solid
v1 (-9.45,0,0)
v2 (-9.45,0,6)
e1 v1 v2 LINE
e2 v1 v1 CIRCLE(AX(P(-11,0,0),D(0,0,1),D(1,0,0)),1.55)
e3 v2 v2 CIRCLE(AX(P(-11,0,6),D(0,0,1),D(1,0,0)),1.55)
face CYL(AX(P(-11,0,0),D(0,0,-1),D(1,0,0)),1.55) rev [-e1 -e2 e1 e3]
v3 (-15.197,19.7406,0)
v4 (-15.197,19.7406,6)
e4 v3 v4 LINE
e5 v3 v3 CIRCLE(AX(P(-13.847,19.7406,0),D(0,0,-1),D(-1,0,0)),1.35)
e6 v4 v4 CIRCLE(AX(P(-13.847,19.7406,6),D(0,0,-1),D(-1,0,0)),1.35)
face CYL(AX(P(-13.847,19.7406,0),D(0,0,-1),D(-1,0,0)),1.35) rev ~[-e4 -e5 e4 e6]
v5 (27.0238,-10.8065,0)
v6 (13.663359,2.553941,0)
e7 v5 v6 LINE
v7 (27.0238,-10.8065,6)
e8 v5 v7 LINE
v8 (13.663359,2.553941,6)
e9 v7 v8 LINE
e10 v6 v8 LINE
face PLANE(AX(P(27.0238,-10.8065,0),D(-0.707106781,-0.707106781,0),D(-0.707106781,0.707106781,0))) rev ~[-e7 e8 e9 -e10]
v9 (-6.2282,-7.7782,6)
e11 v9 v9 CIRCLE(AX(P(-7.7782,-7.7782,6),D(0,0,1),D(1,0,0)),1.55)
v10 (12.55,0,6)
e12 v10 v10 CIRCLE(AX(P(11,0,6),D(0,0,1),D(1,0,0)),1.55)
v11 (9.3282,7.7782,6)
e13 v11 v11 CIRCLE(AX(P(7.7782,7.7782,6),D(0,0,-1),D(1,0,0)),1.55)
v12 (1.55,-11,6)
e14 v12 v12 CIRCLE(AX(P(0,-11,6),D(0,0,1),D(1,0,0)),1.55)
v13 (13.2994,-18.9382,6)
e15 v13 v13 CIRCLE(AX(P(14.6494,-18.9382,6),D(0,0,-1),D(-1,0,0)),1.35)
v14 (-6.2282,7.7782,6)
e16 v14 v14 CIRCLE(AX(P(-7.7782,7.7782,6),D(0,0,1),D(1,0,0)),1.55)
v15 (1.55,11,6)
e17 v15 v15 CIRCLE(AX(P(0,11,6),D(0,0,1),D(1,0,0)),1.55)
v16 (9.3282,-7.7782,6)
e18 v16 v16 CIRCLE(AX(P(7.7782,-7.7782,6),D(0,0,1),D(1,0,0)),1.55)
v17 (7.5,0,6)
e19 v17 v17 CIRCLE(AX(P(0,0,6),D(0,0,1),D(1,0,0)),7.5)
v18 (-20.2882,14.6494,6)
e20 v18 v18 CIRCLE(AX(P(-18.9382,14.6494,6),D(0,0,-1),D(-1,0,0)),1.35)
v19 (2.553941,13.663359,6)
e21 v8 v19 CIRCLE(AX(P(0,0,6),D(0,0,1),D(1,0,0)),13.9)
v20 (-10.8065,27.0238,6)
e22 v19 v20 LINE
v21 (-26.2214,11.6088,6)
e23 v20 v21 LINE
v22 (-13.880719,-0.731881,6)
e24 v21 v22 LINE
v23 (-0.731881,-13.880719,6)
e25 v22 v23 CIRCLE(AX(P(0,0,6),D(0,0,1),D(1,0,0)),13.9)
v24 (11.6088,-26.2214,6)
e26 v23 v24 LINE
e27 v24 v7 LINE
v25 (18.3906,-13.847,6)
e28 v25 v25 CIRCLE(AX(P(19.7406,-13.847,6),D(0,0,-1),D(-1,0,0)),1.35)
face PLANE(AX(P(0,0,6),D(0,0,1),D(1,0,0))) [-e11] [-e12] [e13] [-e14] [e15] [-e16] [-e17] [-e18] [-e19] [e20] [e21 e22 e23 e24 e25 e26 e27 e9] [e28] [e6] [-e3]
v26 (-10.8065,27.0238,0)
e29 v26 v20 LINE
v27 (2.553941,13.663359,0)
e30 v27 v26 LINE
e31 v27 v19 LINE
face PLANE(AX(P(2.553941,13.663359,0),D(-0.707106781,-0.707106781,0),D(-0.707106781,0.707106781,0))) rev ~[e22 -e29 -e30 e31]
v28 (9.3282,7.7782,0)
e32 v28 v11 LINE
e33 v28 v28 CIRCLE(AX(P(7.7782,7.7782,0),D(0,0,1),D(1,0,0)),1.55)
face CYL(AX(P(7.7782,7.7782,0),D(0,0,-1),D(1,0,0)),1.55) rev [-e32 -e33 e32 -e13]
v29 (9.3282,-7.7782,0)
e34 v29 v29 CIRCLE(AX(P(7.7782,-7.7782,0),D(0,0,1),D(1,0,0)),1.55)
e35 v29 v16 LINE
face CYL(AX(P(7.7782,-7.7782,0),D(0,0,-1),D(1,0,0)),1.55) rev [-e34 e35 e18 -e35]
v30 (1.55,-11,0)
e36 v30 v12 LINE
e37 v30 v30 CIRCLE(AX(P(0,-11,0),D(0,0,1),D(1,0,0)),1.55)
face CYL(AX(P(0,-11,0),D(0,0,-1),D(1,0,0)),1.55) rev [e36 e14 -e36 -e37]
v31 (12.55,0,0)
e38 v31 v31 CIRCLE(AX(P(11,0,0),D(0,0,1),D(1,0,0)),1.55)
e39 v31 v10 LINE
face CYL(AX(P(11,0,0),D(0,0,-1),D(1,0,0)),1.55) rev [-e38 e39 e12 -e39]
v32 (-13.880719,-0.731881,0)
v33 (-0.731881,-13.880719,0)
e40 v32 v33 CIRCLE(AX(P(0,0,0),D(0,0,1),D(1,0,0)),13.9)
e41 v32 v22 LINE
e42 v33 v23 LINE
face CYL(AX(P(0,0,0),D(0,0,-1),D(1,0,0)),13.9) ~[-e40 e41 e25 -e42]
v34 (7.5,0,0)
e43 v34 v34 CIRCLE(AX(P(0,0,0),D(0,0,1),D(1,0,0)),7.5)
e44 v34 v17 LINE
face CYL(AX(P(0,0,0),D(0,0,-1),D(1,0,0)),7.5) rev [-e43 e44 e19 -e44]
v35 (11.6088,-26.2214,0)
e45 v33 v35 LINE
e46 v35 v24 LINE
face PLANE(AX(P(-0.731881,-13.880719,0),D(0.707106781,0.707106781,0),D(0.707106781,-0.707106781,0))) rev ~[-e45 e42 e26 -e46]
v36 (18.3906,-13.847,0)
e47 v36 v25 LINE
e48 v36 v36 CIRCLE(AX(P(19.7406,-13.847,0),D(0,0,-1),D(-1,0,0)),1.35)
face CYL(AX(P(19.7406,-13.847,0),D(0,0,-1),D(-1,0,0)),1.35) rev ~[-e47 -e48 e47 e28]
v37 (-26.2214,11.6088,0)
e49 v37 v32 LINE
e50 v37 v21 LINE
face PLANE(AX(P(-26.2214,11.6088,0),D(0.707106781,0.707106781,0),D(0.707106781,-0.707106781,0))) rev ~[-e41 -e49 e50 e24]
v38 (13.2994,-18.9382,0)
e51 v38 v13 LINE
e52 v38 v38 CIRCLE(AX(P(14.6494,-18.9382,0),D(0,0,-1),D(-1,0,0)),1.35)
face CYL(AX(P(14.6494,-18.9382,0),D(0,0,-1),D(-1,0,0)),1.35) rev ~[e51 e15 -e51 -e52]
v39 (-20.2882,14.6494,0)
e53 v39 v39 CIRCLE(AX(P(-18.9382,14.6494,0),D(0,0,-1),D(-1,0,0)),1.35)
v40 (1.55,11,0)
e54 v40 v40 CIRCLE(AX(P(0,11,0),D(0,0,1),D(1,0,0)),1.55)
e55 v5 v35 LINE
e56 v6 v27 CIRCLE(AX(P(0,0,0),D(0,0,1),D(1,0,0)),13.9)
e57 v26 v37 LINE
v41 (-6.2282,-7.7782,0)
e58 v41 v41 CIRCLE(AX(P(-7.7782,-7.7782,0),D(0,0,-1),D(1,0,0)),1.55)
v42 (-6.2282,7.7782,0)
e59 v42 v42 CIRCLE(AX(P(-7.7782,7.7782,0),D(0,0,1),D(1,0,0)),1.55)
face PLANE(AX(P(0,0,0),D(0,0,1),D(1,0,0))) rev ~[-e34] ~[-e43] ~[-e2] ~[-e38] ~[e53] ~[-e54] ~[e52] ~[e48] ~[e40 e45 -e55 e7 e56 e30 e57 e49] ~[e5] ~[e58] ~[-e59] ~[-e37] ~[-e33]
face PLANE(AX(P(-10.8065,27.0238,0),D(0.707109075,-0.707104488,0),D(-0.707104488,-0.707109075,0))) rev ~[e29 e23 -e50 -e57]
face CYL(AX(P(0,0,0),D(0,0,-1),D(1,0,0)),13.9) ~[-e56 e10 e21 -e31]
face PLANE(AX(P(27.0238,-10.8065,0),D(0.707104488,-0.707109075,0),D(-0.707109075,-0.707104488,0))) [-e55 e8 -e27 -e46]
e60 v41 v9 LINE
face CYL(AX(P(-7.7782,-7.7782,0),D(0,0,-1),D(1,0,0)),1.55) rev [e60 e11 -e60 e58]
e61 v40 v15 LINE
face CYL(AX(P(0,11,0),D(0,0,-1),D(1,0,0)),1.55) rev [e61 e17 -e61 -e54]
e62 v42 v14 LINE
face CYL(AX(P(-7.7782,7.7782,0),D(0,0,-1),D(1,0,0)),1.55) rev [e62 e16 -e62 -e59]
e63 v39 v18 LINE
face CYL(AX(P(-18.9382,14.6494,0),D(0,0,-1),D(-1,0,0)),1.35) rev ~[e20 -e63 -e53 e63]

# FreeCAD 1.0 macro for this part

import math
import FreeCAD as App
import Part
import Sketcher
from FreeCAD import Vector
Q = App.Units.Quantity

doc = App.newDocument("Part")
body = doc.addObject("PartDesign::Body", "Body")

# Sketch on XY plane
sketch1 = body.newObject("Sketcher::SketchObject", "Sketch")
sketch1.AttachmentSupport = (doc.getObject("XY_Plane"), [""])
sketch1.MapMode = "FlatFace"
sketch1.addGeometry([
    Part.ArcOfCircle(Part.Circle(Vector(0, 0, 0), Vector(0, 0, 1), 13.9), math.radians(-176.98179), math.radians(-93.01821)),  # 0
    Part.LineSegment(Vector(-0.731881, -13.880719, 0), Vector(11.6088, -26.2214, 0)),  # 1
    Part.LineSegment(Vector(11.6088, -26.2214, 0), Vector(27.0238, -10.8065, 0)),  # 2
    Part.LineSegment(Vector(27.0238, -10.8065, 0), Vector(13.663359, 2.553941, 0)),  # 3
    Part.ArcOfCircle(Part.Circle(Vector(0, 0, 0), Vector(0, 0, 1), 13.9), math.radians(10.587491), math.radians(79.412509)),  # 4
    Part.LineSegment(Vector(2.553941, 13.663359, 0), Vector(-10.8065, 27.0238, 0)),  # 5
    Part.LineSegment(Vector(-10.8065, 27.0238, 0), Vector(-26.2214, 11.6088, 0)),  # 6
    Part.LineSegment(Vector(-26.2214, 11.6088, 0), Vector(-13.880719, -0.731881, 0)),  # 7
    Part.Circle(Vector(-7.7782, -7.7782, 0), Vector(0, 0, 1), 1.55),  # 8
    Part.Circle(Vector(7.7782, 7.7782, 0), Vector(0, 0, 1), 1.55),  # 9
    Part.Circle(Vector(0, -11, 0), Vector(0, 0, 1), 1.55),  # 10
    Part.Circle(Vector(-11, 0, 0), Vector(0, 0, 1), 1.55),  # 11
    Part.Circle(Vector(0, 0, 0), Vector(0, 0, 1), 7.5),  # 12
    Part.Circle(Vector(7.7782, -7.7782, 0), Vector(0, 0, 1), 1.55),  # 13
    Part.Circle(Vector(11, 0, 0), Vector(0, 0, 1), 1.55),  # 14
    Part.Circle(Vector(-7.7782, 7.7782, 0), Vector(0, 0, 1), 1.55),  # 15
    Part.Circle(Vector(0, 11, 0), Vector(0, 0, 1), 1.55),  # 16
], False)
sketch1.addConstraint([
    Sketcher.Constraint("Coincident", 0, 2, 1, 1),
    Sketcher.Constraint("Coincident", 1, 2, 2, 1),
    Sketcher.Constraint("Coincident", 2, 2, 3, 1),
    Sketcher.Constraint("Coincident", 3, 2, 4, 1),
    Sketcher.Constraint("Coincident", 4, 2, 5, 1),
    Sketcher.Constraint("Coincident", 5, 2, 6, 1),
    Sketcher.Constraint("Coincident", 6, 2, 7, 1),
    Sketcher.Constraint("Coincident", 7, 2, 0, 1),
    Sketcher.Constraint("Coincident", 0, 3, -1, 1),
    Sketcher.Constraint("Coincident", 4, 3, -1, 1),
    Sketcher.Constraint("Coincident", 12, 3, -1, 1),
    Sketcher.Constraint("Equal", 0, 4),
    Sketcher.Constraint("Equal", 8, 9),
    Sketcher.Constraint("Equal", 9, 10),
    Sketcher.Constraint("Equal", 10, 11),
    Sketcher.Constraint("Equal", 11, 13),
    Sketcher.Constraint("Equal", 13, 14),
    Sketcher.Constraint("Equal", 14, 15),
    Sketcher.Constraint("Equal", 15, 16),
    Sketcher.Constraint("Symmetric", 8, 3, 9, 3, -1, 1),
    Sketcher.Constraint("Symmetric", 11, 3, 14, 3, -1, 1),
    Sketcher.Constraint("Symmetric", 13, 3, 15, 3, -1, 1),
    Sketcher.Constraint("Symmetric", 10, 3, 16, 3, -1, 1),
    Sketcher.Constraint("Symmetric", 8, 3, 13, 3, -2),
    Sketcher.Constraint("PointOnObject", 10, 3, -2),
    Sketcher.Constraint("PointOnObject", 11, 3, -1),
    Sketcher.Constraint("Perpendicular", 1, 2),
    Sketcher.Constraint("Perpendicular", 2, 3),
    Sketcher.Constraint("Parallel", 3, 5),
    Sketcher.Constraint("Perpendicular", 5, 6),
    Sketcher.Constraint("Perpendicular", 6, 7),
    Sketcher.Constraint("Equal", 3, 5),
    Sketcher.Constraint("Equal", 2, 6),
    Sketcher.Constraint("Equal", 1, 7),
    Sketcher.Constraint("Diameter", 12, 15.0),
    Sketcher.Constraint("Diameter", 8, 3.1),
    Sketcher.Constraint("Radius", 0, 13.9),
    Sketcher.Constraint("Angle", 1, Q("-45 deg")),
    Sketcher.Constraint("DistanceY", 10, 3, -1, 1, 11.0),
    Sketcher.Constraint("DistanceX", 11, 3, -1, 1, 11.0),
    Sketcher.Constraint("Distance", 2, 21.8),
    Sketcher.Constraint("DistanceX", 0, 2, 13, 3, 8.51),
    Sketcher.Constraint("DistanceY", 7, 2, 15, 3, 8.51),
    Sketcher.Constraint("DistanceX", 0, 2, -1, 1, 0.732),
    Sketcher.Constraint("DistanceX", 8, 3, 1, 2, 19.387),
])
pad1 = body.newObject("PartDesign::Pad", "Pad")
pad1.Profile = sketch1
pad1.Length = 6

# Sketch on XY plane
sketch2 = body.newObject("Sketcher::SketchObject", "Sketch001")
sketch2.AttachmentSupport = (doc.getObject("XY_Plane"), [""])
sketch2.MapMode = "FlatFace"
sketch2.addGeometry([
    Part.Circle(Vector(-13.847, 19.7406, 0), Vector(0, 0, 1), 1.35),
    Part.Circle(Vector(-18.9382, 14.6494, 0), Vector(0, 0, 1), 1.35),
    Part.Circle(Vector(14.6494, -18.9382, 0), Vector(0, 0, 1), 1.35),
    Part.Circle(Vector(19.7406, -13.847, 0), Vector(0, 0, 1), 1.35),
], False)
sketch2.addConstraint([
    Sketcher.Constraint("Equal", 0, 1),
    Sketcher.Constraint("Equal", 1, 2),
    Sketcher.Constraint("Equal", 2, 3),
    Sketcher.Constraint("Diameter", 0, 2.7),
    Sketcher.Constraint("DistanceX", 0, 3, -1, 1, 13.847),
    Sketcher.Constraint("DistanceY", 3, 3, -1, 1, 13.847),
    Sketcher.Constraint("DistanceY", -1, 1, 0, 3, 19.7406),
    Sketcher.Constraint("DistanceX", 1, 3, -1, 1, 18.9382),
    Sketcher.Constraint("DistanceY", -1, 1, 1, 3, 14.6494),
    Sketcher.Constraint("DistanceX", -1, 1, 2, 3, 14.6494),
    Sketcher.Constraint("DistanceY", 2, 3, -1, 1, 18.9382),
    Sketcher.Constraint("DistanceX", -1, 1, 3, 3, 19.7406),
])
pocket1 = body.newObject("PartDesign::Pocket", "Pocket")
pocket1.Profile = sketch2
pocket1.Length = 6
pocket1.Reversed = True

doc.recompute()
